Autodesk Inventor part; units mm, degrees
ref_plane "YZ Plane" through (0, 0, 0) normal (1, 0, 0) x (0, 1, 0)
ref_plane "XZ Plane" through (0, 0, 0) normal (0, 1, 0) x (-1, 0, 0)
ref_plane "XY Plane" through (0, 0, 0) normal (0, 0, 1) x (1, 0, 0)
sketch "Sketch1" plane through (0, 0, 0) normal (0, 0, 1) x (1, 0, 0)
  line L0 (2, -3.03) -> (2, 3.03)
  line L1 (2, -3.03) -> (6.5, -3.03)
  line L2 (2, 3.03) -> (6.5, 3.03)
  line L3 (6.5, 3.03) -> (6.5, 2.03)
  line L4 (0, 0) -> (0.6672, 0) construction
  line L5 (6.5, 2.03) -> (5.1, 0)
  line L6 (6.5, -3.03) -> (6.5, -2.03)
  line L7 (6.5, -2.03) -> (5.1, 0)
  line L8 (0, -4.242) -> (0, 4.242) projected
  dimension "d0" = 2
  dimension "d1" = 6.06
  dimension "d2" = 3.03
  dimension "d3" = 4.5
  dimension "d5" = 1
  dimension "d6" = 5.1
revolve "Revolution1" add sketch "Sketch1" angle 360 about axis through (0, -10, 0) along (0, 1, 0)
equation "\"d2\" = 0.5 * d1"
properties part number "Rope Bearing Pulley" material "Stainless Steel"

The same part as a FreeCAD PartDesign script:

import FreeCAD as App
import Part
import Sketcher

V = App.Vector
Q = App.Units.Quantity

doc = App.newDocument("Part")
body = doc.addObject("PartDesign::Body", "Body")

# Sketch on XY plane
sketch1 = doc.addObject("Sketcher::SketchObject", "Sketch")
body.addObject(sketch1)
sketch1.AttachmentSupport = (doc.XY_Plane, [""])
sketch1.MapMode = "FlatFace"
sketch1.addGeometry(Part.LineSegment(V(2, 3.03, 0), V(2, -3.03, 0)), False)
sketch1.addGeometry(Part.LineSegment(V(2, -3.03, 0), V(6.5, -3.03, 0)), False)
sketch1.addGeometry(Part.LineSegment(V(6.5, -3.03, 0), V(6.5, -2.03, 0)), False)
sketch1.addGeometry(Part.LineSegment(V(6.5, -2.03, 0), V(5.1, 0, 0)), False)
sketch1.addGeometry(Part.LineSegment(V(5.1, 0, 0), V(6.5, 2.03, 0)), False)
sketch1.addGeometry(Part.LineSegment(V(6.5, 2.03, 0), V(6.5, 3.03, 0)), False)
sketch1.addGeometry(Part.LineSegment(V(6.5, 3.03, 0), V(2, 3.03, 0)), False)
sketch1.addConstraint(Sketcher.Constraint("Coincident", 0, 2, 1, 1))
sketch1.addConstraint(Sketcher.Constraint("Coincident", 1, 2, 2, 1))
sketch1.addConstraint(Sketcher.Constraint("Coincident", 2, 2, 3, 1))
sketch1.addConstraint(Sketcher.Constraint("Coincident", 3, 2, 4, 1))
sketch1.addConstraint(Sketcher.Constraint("Coincident", 4, 2, 5, 1))
sketch1.addConstraint(Sketcher.Constraint("Coincident", 5, 2, 6, 1))
sketch1.addConstraint(Sketcher.Constraint("Coincident", 6, 2, 0, 1))
sketch1.addConstraint(Sketcher.Constraint("Vertical", 0))
sketch1.addConstraint(Sketcher.Constraint("Horizontal", 1))
sketch1.addConstraint(Sketcher.Constraint("Vertical", 2))
sketch1.addConstraint(Sketcher.Constraint("Vertical", 5))
sketch1.addConstraint(Sketcher.Constraint("Horizontal", 6))
sketch1.addConstraint(Sketcher.Constraint("Symmetric", 2, 2, 4, 2, -1))
sketch1.addConstraint(Sketcher.Constraint("PointOnObject", 3, 2, -1))
sketch1.addConstraint(Sketcher.Constraint("Equal", 2, 5))
sketch1.addConstraint(Sketcher.Constraint("DistanceY", 2, 1, 2, 2, Q("1 mm")))
sketch1.addConstraint(Sketcher.Constraint("DistanceX", 1, 1, 1, 2, Q("4.5 mm")))
sketch1.addConstraint(Sketcher.Constraint("DistanceX", -1, 1, 0, 2, Q("2 mm")))
sketch1.addConstraint(Sketcher.Constraint("DistanceY", 0, 2, 0, 1, Q("6.06 mm")))
sketch1.addConstraint(Sketcher.Constraint("DistanceX", -1, 1, 3, 2, Q("5.1 mm")))
revolution = doc.addObject("PartDesign::Revolution", "Revolution")
body.addObject(revolution)
revolution.Profile = sketch1
revolution.ReferenceAxis = (sketch1, ["V_Axis"])
revolution.Angle = 360

doc.recompute()
